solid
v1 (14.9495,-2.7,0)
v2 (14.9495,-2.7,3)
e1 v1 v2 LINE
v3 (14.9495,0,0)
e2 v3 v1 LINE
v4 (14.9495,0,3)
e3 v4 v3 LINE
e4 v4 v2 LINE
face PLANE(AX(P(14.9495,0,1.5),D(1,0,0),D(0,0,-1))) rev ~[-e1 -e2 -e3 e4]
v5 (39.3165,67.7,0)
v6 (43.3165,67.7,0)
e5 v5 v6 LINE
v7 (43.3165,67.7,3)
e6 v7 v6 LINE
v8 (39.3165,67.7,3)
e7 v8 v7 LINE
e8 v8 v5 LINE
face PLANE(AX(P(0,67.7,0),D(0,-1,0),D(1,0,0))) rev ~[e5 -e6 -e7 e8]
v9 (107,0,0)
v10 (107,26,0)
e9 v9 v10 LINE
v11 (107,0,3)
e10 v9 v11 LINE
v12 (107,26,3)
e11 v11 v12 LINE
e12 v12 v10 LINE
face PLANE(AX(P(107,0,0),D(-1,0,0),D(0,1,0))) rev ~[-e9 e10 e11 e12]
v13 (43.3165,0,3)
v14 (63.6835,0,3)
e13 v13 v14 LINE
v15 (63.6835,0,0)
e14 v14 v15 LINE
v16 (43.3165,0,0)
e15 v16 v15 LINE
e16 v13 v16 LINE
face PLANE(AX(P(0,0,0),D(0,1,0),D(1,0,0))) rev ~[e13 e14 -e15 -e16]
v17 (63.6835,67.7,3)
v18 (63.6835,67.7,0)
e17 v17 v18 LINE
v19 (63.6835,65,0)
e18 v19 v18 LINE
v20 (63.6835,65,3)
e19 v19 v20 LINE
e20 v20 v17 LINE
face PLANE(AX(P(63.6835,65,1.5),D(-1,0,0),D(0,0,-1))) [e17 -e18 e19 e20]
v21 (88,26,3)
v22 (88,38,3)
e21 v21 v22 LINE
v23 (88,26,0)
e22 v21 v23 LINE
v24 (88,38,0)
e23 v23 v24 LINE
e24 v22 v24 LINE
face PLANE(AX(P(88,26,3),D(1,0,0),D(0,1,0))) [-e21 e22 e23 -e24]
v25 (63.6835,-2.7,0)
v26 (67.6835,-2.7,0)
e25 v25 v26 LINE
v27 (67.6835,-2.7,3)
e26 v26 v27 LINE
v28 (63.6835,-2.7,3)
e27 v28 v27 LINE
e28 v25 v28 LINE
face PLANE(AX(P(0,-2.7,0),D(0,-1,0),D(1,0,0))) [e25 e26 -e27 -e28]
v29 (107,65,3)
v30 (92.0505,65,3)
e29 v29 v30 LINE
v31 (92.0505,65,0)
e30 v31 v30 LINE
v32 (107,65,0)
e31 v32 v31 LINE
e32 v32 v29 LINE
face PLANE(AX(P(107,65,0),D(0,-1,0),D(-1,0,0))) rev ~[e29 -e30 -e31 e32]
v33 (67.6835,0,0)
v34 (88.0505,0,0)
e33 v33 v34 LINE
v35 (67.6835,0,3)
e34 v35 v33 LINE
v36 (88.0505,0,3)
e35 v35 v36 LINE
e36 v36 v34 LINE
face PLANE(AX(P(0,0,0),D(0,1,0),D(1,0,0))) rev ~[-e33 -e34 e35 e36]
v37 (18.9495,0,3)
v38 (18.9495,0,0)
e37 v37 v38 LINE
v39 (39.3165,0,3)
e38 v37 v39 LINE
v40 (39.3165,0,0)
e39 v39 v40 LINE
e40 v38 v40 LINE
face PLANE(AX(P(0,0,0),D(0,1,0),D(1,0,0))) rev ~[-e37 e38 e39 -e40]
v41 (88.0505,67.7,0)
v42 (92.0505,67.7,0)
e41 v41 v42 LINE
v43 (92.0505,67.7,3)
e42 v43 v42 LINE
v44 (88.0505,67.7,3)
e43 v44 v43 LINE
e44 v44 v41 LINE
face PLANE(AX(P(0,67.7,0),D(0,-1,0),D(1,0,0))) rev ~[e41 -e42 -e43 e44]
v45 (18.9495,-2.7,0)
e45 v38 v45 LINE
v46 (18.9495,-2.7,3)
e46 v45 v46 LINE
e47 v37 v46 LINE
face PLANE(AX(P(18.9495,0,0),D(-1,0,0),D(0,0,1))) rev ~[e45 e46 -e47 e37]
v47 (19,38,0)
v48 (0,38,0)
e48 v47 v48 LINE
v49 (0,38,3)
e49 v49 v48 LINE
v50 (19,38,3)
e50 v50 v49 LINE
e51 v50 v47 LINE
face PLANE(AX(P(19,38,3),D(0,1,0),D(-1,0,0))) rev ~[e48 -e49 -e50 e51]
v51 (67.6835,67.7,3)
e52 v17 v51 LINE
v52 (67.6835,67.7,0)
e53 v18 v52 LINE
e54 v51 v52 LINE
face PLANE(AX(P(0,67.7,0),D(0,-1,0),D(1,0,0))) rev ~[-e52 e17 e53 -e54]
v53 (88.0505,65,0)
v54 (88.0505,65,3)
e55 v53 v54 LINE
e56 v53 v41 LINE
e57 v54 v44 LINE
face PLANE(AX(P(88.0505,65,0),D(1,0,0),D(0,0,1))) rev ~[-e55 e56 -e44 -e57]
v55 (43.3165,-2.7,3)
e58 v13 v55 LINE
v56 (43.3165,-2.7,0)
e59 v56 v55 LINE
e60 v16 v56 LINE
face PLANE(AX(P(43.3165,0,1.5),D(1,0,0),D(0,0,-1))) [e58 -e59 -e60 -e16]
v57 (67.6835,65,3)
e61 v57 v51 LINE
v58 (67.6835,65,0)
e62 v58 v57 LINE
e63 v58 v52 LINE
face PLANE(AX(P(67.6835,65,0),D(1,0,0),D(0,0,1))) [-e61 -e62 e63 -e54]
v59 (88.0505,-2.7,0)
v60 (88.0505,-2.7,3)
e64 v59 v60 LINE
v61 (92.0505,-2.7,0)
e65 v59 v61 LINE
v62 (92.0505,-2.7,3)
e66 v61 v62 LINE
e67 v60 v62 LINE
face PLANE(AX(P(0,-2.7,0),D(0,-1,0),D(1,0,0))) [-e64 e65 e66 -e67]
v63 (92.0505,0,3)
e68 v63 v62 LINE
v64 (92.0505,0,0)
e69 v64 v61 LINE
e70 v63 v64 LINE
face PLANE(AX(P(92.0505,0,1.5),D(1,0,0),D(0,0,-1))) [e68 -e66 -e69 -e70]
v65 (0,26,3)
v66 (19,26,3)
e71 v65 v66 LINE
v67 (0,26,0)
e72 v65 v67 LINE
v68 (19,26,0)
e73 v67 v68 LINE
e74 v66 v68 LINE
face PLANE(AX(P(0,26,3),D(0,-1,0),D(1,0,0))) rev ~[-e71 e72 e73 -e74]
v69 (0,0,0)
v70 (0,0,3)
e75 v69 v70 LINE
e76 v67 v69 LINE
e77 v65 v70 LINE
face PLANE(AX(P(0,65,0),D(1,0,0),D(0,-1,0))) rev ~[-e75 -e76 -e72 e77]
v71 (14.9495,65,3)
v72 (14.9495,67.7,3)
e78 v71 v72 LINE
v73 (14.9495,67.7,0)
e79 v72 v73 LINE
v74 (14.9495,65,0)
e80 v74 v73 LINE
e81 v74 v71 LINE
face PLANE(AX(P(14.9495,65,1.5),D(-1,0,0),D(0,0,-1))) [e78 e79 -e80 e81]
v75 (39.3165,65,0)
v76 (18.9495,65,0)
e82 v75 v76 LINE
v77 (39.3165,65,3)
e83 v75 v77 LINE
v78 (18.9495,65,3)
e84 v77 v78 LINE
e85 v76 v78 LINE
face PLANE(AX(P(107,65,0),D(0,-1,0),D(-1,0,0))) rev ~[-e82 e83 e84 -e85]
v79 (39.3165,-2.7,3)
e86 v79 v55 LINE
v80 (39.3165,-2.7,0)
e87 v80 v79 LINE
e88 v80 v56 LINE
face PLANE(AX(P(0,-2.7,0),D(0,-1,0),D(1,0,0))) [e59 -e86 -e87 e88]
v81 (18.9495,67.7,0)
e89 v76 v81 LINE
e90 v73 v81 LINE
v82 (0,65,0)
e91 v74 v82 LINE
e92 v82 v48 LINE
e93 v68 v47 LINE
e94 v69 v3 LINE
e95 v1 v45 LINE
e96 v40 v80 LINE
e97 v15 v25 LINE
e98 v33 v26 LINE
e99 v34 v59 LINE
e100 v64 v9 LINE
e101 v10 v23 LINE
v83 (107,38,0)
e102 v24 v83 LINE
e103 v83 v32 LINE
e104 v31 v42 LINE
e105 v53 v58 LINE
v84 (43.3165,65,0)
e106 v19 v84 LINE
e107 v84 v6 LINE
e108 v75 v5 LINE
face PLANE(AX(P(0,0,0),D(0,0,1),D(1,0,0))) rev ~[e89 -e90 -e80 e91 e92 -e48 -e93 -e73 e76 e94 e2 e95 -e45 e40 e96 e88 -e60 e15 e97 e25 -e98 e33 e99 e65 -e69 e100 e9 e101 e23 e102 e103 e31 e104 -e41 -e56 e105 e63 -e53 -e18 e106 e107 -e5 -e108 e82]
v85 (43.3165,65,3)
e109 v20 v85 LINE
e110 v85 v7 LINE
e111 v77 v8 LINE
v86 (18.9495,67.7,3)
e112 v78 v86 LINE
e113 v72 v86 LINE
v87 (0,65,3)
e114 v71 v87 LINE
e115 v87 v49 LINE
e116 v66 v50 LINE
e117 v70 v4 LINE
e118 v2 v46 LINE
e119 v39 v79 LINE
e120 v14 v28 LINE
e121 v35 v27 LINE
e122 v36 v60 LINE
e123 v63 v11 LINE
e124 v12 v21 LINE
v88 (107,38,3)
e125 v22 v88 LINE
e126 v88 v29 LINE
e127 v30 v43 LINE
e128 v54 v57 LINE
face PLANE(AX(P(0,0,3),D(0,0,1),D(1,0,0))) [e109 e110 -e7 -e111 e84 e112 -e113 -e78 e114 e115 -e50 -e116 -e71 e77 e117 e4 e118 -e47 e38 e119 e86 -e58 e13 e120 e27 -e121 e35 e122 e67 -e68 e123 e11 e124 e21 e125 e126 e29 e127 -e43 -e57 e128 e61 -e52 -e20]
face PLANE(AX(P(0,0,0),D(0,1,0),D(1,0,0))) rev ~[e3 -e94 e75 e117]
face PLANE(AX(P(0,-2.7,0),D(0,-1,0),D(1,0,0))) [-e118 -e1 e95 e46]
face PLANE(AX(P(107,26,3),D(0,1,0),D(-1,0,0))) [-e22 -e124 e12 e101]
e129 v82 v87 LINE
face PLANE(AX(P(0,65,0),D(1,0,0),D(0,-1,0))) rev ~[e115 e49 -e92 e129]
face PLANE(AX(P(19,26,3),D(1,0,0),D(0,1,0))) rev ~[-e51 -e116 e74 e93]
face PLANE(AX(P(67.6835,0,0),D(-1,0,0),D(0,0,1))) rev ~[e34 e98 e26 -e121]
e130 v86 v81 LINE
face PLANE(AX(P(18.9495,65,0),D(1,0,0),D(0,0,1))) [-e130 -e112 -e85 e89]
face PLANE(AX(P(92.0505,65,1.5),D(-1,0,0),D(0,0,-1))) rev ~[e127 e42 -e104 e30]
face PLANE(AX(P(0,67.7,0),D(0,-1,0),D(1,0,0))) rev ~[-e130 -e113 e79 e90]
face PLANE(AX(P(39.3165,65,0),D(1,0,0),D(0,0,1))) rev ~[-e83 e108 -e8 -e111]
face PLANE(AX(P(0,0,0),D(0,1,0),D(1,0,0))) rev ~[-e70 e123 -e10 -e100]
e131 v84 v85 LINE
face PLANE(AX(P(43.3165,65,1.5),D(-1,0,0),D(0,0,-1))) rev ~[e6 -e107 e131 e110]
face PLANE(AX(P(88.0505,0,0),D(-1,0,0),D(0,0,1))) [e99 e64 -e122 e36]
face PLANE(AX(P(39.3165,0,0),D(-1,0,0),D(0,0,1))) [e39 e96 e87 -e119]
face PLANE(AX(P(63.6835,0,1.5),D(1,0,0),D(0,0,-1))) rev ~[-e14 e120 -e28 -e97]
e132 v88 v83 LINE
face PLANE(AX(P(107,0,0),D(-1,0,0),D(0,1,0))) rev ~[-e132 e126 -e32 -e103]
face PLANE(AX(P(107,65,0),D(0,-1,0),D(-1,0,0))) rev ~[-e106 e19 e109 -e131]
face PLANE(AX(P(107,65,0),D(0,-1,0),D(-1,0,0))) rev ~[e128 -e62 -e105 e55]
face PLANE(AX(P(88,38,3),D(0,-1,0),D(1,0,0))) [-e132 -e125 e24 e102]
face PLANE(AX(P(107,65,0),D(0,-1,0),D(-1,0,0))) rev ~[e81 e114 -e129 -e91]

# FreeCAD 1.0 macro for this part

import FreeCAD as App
import Part
import Sketcher

V = App.Vector
Q = App.Units.Quantity

doc = App.newDocument("Part")
body = doc.addObject("PartDesign::Body", "Body")

sketch1 = body.newObject("Sketcher::SketchObject", "Sketch")
sketch1.AttachmentSupport = (doc.getObject("XY_Plane"), [""])
sketch1.MapMode = "FlatFace"
sketch1.addGeometry([
    Part.LineSegment(V(0, 65, 0), V(0, 0, 0)),
    Part.LineSegment(V(0, 0, 0), V(107, 0, 0)),
    Part.LineSegment(V(107, 0, 0), V(107, 65, 0)),
    Part.LineSegment(V(107, 65, 0), V(0, 65, 0)),
], False)
sketch1.addConstraint([
    Sketcher.Constraint("Coincident", 0, 2, 1, 1),
    Sketcher.Constraint("Coincident", 1, 2, 2, 1),
    Sketcher.Constraint("Coincident", 2, 2, 3, 1),
    Sketcher.Constraint("Coincident", 3, 2, 0, 1),
    Sketcher.Constraint("Vertical", 0),
    Sketcher.Constraint("Horizontal", 1),
    Sketcher.Constraint("Vertical", 2),
    Sketcher.Constraint("Horizontal", 3),
    Sketcher.Constraint("Coincident", 0, 2, -1, 1),
    Sketcher.Constraint("DistanceX", 1, 1, 1, 2, Q("107 mm")),
    Sketcher.Constraint("DistanceY", 0, 2, 0, 1, Q("65 mm")),
])
pad1 = body.newObject("PartDesign::Pad", "Pad")
pad1.Profile = sketch1
pad1.Length = 3

sketch2 = body.newObject("Sketcher::SketchObject", "Sketch001")
sketch2.AttachmentSupport = (doc.getObject("XY_Plane"), [""])
sketch2.MapMode = "FlatFace"
sketch2.AttachmentOffset = App.Placement(V(0, 0, 3), App.Rotation())
sketch2.addGeometry([
    Part.LineSegment(V(88, 26, 0), V(107, 26, 0)),
    Part.LineSegment(V(107, 26, 0), V(107, 38, 0)),
    Part.LineSegment(V(107, 38, 0), V(88, 38, 0)),
    Part.LineSegment(V(88, 38, 0), V(88, 26, 0)),
    Part.LineSegment(V(0, 38, 0), V(0, 26, 0)),
    Part.LineSegment(V(0, 26, 0), V(19, 26, 0)),
    Part.LineSegment(V(19, 26, 0), V(19, 38, 0)),
    Part.LineSegment(V(19, 38, 0), V(0, 38, 0)),
], False)
sketch2.addConstraint([
    Sketcher.Constraint("Coincident", 0, 2, 1, 1),
    Sketcher.Constraint("Coincident", 1, 2, 2, 1),
    Sketcher.Constraint("Coincident", 2, 2, 3, 1),
    Sketcher.Constraint("Coincident", 3, 2, 0, 1),
    Sketcher.Constraint("Coincident", 4, 2, 5, 1),
    Sketcher.Constraint("Coincident", 5, 2, 6, 1),
    Sketcher.Constraint("Coincident", 6, 2, 7, 1),
    Sketcher.Constraint("Coincident", 7, 2, 4, 1),
    Sketcher.Constraint("Horizontal", 0),
    Sketcher.Constraint("Vertical", 1),
    Sketcher.Constraint("Horizontal", 2),
    Sketcher.Constraint("Vertical", 3),
    Sketcher.Constraint("Vertical", 4),
    Sketcher.Constraint("Horizontal", 5),
    Sketcher.Constraint("Vertical", 6),
    Sketcher.Constraint("Horizontal", 7),
    Sketcher.Constraint("PointOnObject", 4, 2, -2),
    Sketcher.Constraint("Horizontal", 3, 2, 4, 2),
    Sketcher.Constraint("Horizontal", 2, 2, 6, 2),
    Sketcher.Constraint("Equal", 2, 5),
    Sketcher.Constraint("DistanceX", 0, 1, 0, 2, Q("19 mm")),
    Sketcher.Constraint("DistanceY", 1, 1, 1, 2, Q("12 mm")),
    Sketcher.Constraint("DistanceY", -1, 1, 0, 2, Q("26 mm")),
    Sketcher.Constraint("DistanceX", -1, 1, 0, 2, Q("107 mm")),
])
pocket1 = body.newObject("PartDesign::Pocket", "Pocket")
pocket1.Profile = sketch2
pocket1.Length = 50.975

sketch3 = body.newObject("Sketcher::SketchObject", "Sketch002")
sketch3.AttachmentSupport = (doc.getObject("XZ_Plane"), [""])
sketch3.MapMode = "FlatFace"
sketch3.addGeometry([
    Part.LineSegment(V(14.9, 0, 0), V(18.9, 0, 0)),
    Part.LineSegment(V(18.9, 0, 0), V(18.9, 3, 0)),
    Part.LineSegment(V(18.9, 3, 0), V(14.9, 3, 0)),
    Part.LineSegment(V(14.9, 3, 0), V(14.9, 0, 0)),
    Part.LineSegment(V(39.3, 0, 0), V(43.3, 0, 0)),
    Part.LineSegment(V(43.3, 0, 0), V(43.3, 3, 0)),
    Part.LineSegment(V(43.3, 3, 0), V(39.3, 3, 0)),
    Part.LineSegment(V(39.3, 3, 0), V(39.3, 0, 0)),
    Part.LineSegment(V(63.7, 0, 0), V(67.7, 0, 0)),
    Part.LineSegment(V(67.7, 0, 0), V(67.7, 3, 0)),
    Part.LineSegment(V(67.7, 3, 0), V(63.7, 3, 0)),
    Part.LineSegment(V(63.7, 3, 0), V(63.7, 0, 0)),
    Part.LineSegment(V(88.1, 0, 0), V(92.1, 0, 0)),
    Part.LineSegment(V(92.1, 0, 0), V(92.1, 3, 0)),
    Part.LineSegment(V(92.1, 3, 0), V(88.1, 3, 0)),
    Part.LineSegment(V(88.1, 3, 0), V(88.1, 0, 0)),
], False)
sketch3.addConstraint([
    Sketcher.Constraint("Coincident", 0, 2, 1, 1),
    Sketcher.Constraint("Coincident", 1, 2, 2, 1),
    Sketcher.Constraint("Coincident", 2, 2, 3, 1),
    Sketcher.Constraint("Coincident", 3, 2, 0, 1),
    Sketcher.Constraint("Coincident", 4, 2, 5, 1),
    Sketcher.Constraint("Coincident", 5, 2, 6, 1),
    Sketcher.Constraint("Coincident", 6, 2, 7, 1),
    Sketcher.Constraint("Coincident", 7, 2, 4, 1),
    Sketcher.Constraint("Coincident", 8, 2, 9, 1),
    Sketcher.Constraint("Coincident", 9, 2, 10, 1),
    Sketcher.Constraint("Coincident", 10, 2, 11, 1),
    Sketcher.Constraint("Coincident", 11, 2, 8, 1),
    Sketcher.Constraint("Coincident", 12, 2, 13, 1),
    Sketcher.Constraint("Coincident", 13, 2, 14, 1),
    Sketcher.Constraint("Coincident", 14, 2, 15, 1),
    Sketcher.Constraint("Coincident", 15, 2, 12, 1),
    Sketcher.Constraint("Horizontal", 0),
    Sketcher.Constraint("Vertical", 1),
    Sketcher.Constraint("Horizontal", 2),
    Sketcher.Constraint("Vertical", 3),
    Sketcher.Constraint("Horizontal", 4),
    Sketcher.Constraint("Vertical", 5),
    Sketcher.Constraint("Horizontal", 6),
    Sketcher.Constraint("Vertical", 7),
    Sketcher.Constraint("Horizontal", 8),
    Sketcher.Constraint("Vertical", 9),
    Sketcher.Constraint("Horizontal", 10),
    Sketcher.Constraint("Vertical", 11),
    Sketcher.Constraint("Horizontal", 12),
    Sketcher.Constraint("Vertical", 13),
    Sketcher.Constraint("Horizontal", 14),
    Sketcher.Constraint("Vertical", 15),
    Sketcher.Constraint("PointOnObject", 0, 2, -1),
    Sketcher.Constraint("PointOnObject", 4, 2, -1),
    Sketcher.Constraint("PointOnObject", 8, 2, -1),
    Sketcher.Constraint("PointOnObject", 12, 2, -1),
    Sketcher.Constraint("Horizontal", 2, 2, 5, 2),
    Sketcher.Constraint("Horizontal", 6, 2, 9, 2),
    Sketcher.Constraint("Horizontal", 10, 2, 13, 2),
    Sketcher.Constraint("Equal", 2, 4),
    Sketcher.Constraint("Equal", 6, 8),
    Sketcher.Constraint("Equal", 10, 12),
    Sketcher.Constraint("DistanceX", 0, 1, 0, 2, Q("4 mm")),
    Sketcher.Constraint("DistanceY", 1, 1, 1, 2, Q("3 mm")),
    Sketcher.Constraint("DistanceX", 1, 2, 6, 2, Q("20.367 mm")),
    Sketcher.Constraint("DistanceX", 5, 2, 10, 2, Q("20.367 mm")),
    Sketcher.Constraint("DistanceX", 9, 2, 14, 2, Q("20.367 mm")),
    Sketcher.Constraint("DistanceX", -1, 1, 0, 2, Q("18.9495 mm")),
])
pad2 = body.newObject("PartDesign::Pad", "Pad001")
pad2.Profile = sketch3
pad2.Length = 2.7

sketch4 = body.newObject("Sketcher::SketchObject", "Sketch003")
sketch4.AttachmentSupport = (doc.getObject("XZ_Plane"), [""])
sketch4.MapMode = "FlatFace"
sketch4.AttachmentOffset = App.Placement(V(0, 0, -65), App.Rotation())
sketch4.addGeometry([
    Part.LineSegment(V(14.9, 0, 0), V(18.9, 0, 0)),
    Part.LineSegment(V(18.9, 0, 0), V(18.9, 3, 0)),
    Part.LineSegment(V(18.9, 3, 0), V(14.9, 3, 0)),
    Part.LineSegment(V(14.9, 3, 0), V(14.9, 0, 0)),
    Part.LineSegment(V(39.3, 0, 0), V(43.3, 0, 0)),
    Part.LineSegment(V(43.3, 0, 0), V(43.3, 3, 0)),
    Part.LineSegment(V(43.3, 3, 0), V(39.3, 3, 0)),
    Part.LineSegment(V(39.3, 3, 0), V(39.3, 0, 0)),
    Part.LineSegment(V(63.7, 0, 0), V(67.7, 0, 0)),
    Part.LineSegment(V(67.7, 0, 0), V(67.7, 3, 0)),
    Part.LineSegment(V(67.7, 3, 0), V(63.7, 3, 0)),
    Part.LineSegment(V(63.7, 3, 0), V(63.7, 0, 0)),
    Part.LineSegment(V(88.1, 0, 0), V(92.1, 0, 0)),
    Part.LineSegment(V(92.1, 0, 0), V(92.1, 3, 0)),
    Part.LineSegment(V(92.1, 3, 0), V(88.1, 3, 0)),
    Part.LineSegment(V(88.1, 3, 0), V(88.1, 0, 0)),
], False)
sketch4.addConstraint([
    Sketcher.Constraint("Coincident", 0, 2, 1, 1),
    Sketcher.Constraint("Coincident", 1, 2, 2, 1),
    Sketcher.Constraint("Coincident", 2, 2, 3, 1),
    Sketcher.Constraint("Coincident", 3, 2, 0, 1),
    Sketcher.Constraint("Coincident", 4, 2, 5, 1),
    Sketcher.Constraint("Coincident", 5, 2, 6, 1),
    Sketcher.Constraint("Coincident", 6, 2, 7, 1),
    Sketcher.Constraint("Coincident", 7, 2, 4, 1),
    Sketcher.Constraint("Coincident", 8, 2, 9, 1),
    Sketcher.Constraint("Coincident", 9, 2, 10, 1),
    Sketcher.Constraint("Coincident", 10, 2, 11, 1),
    Sketcher.Constraint("Coincident", 11, 2, 8, 1),
    Sketcher.Constraint("Coincident", 12, 2, 13, 1),
    Sketcher.Constraint("Coincident", 13, 2, 14, 1),
    Sketcher.Constraint("Coincident", 14, 2, 15, 1),
    Sketcher.Constraint("Coincident", 15, 2, 12, 1),
    Sketcher.Constraint("Horizontal", 0),
    Sketcher.Constraint("Vertical", 1),
    Sketcher.Constraint("Horizontal", 2),
    Sketcher.Constraint("Vertical", 3),
    Sketcher.Constraint("Horizontal", 4),
    Sketcher.Constraint("Vertical", 5),
    Sketcher.Constraint("Horizontal", 6),
    Sketcher.Constraint("Vertical", 7),
    Sketcher.Constraint("Horizontal", 8),
    Sketcher.Constraint("Vertical", 9),
    Sketcher.Constraint("Horizontal", 10),
    Sketcher.Constraint("Vertical", 11),
    Sketcher.Constraint("Horizontal", 12),
    Sketcher.Constraint("Vertical", 13),
    Sketcher.Constraint("Horizontal", 14),
    Sketcher.Constraint("Vertical", 15),
    Sketcher.Constraint("PointOnObject", 0, 2, -1),
    Sketcher.Constraint("PointOnObject", 4, 2, -1),
    Sketcher.Constraint("PointOnObject", 8, 2, -1),
    Sketcher.Constraint("PointOnObject", 12, 2, -1),
    Sketcher.Constraint("Horizontal", 2, 2, 5, 2),
    Sketcher.Constraint("Horizontal", 6, 2, 9, 2),
    Sketcher.Constraint("Horizontal", 10, 2, 13, 2),
    Sketcher.Constraint("Equal", 2, 4),
    Sketcher.Constraint("Equal", 6, 8),
    Sketcher.Constraint("Equal", 10, 12),
    Sketcher.Constraint("DistanceX", 0, 1, 0, 2, Q("4 mm")),
    Sketcher.Constraint("DistanceY", 1, 1, 1, 2, Q("3 mm")),
    Sketcher.Constraint("DistanceX", 1, 2, 6, 2, Q("20.367 mm")),
    Sketcher.Constraint("DistanceX", 5, 2, 10, 2, Q("20.367 mm")),
    Sketcher.Constraint("DistanceX", 9, 2, 14, 2, Q("20.367 mm")),
    Sketcher.Constraint("DistanceX", -1, 1, 0, 2, Q("18.9495 mm")),
])
pad3 = body.newObject("PartDesign::Pad", "Pad002")
pad3.Profile = sketch4
pad3.Length = 2.7
pad3.Reversed = True

doc.recompute()
